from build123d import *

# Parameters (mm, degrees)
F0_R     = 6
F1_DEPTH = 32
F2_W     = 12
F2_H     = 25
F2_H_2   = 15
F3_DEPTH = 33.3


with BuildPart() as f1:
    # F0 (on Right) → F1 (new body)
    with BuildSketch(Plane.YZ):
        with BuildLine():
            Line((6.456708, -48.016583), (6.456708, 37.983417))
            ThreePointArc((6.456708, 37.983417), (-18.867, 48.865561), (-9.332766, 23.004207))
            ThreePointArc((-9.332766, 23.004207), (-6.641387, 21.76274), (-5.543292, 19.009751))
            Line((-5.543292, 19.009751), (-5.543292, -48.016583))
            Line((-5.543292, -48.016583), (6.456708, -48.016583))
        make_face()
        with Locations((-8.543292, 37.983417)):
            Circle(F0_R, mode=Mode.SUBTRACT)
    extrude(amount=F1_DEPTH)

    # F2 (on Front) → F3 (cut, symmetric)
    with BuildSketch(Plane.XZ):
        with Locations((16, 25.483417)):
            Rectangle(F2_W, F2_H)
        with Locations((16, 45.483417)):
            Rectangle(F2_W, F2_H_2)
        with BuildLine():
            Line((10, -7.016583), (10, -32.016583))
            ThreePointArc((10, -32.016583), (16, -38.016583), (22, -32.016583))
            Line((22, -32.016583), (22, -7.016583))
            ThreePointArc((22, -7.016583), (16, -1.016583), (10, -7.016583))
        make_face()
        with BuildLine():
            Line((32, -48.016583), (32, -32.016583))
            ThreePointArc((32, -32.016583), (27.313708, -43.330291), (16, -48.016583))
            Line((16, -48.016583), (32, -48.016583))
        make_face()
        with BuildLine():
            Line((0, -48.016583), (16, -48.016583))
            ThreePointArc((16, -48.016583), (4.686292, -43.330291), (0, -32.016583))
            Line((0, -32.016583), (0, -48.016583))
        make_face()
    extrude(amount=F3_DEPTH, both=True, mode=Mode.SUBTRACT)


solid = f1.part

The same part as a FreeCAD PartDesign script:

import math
import FreeCAD as App
import Part
import Sketcher

V = App.Vector

doc = App.newDocument("Part")
body = doc.addObject("PartDesign::Body", "Body")

sketch1 = doc.addObject("Sketcher::SketchObject", "Sketch")
body.addObject(sketch1)
sketch1.AttachmentSupport = (doc.YZ_Plane, [""])
sketch1.MapMode = "FlatFace"
sketch1.addGeometry(Part.LineSegment(V(6.5, -48, 0), V(6.5, 38, 0)), False)
sketch1.addGeometry(Part.ArcOfCircle(Part.Circle(V(-8.5, 38, 0), V(0, 0, 1), 15), math.radians(0), math.radians(267)), False)
sketch1.addGeometry(Part.ArcOfCircle(Part.Circle(V(-9.5, 19, 0), V(0, 0, 1), 4), math.radians(0), math.radians(87)), False)
sketch1.addGeometry(Part.LineSegment(V(-5.5, 19, 0), V(-5.5, -48, 0)), False)
sketch1.addGeometry(Part.LineSegment(V(-5.5, -48, 0), V(6.5, -48, 0)), False)
sketch1.addGeometry(Part.Circle(V(-8.5, 38, 0), V(0, 0, 1), 6), False)
sketch1.addConstraint(Sketcher.Constraint("Tangent", 0, 2, 1, 1))
sketch1.addConstraint(Sketcher.Constraint("Tangent", 1, 2, 2, 2))
sketch1.addConstraint(Sketcher.Constraint("Tangent", 2, 1, 3, 1))
sketch1.addConstraint(Sketcher.Constraint("Coincident", 3, 2, 4, 1))
sketch1.addConstraint(Sketcher.Constraint("Coincident", 4, 2, 0, 1))
sketch1.addConstraint(Sketcher.Constraint("Vertical", 0))
sketch1.addConstraint(Sketcher.Constraint("Vertical", 3))
sketch1.addConstraint(Sketcher.Constraint("Horizontal", 4))
sketch1.addConstraint(Sketcher.Constraint("Coincident", 5, 3, 1, 3))
sketch1.addConstraint(Sketcher.Constraint("Diameter", 5, 12.0))
sketch1.addConstraint(Sketcher.Constraint("Radius", 1, 15.0))
sketch1.addConstraint(Sketcher.Constraint("Radius", 2, 4.0))
sketch1.addConstraint(Sketcher.Constraint("DistanceX", 4, 1, 4, 2, 12.0))
sketch1.addConstraint(Sketcher.Constraint("DistanceY", 0, 1, 0, 2, 86.0))
sketch1.addConstraint(Sketcher.Constraint("DistanceX", 2, 3, -1, 1, 9.543292))
sketch1.addConstraint(Sketcher.Constraint("DistanceY", -1, 1, 2, 3, 19.009751))
pad1 = doc.addObject("PartDesign::Pad", "Pad")
body.addObject(pad1)
pad1.Profile = sketch1
pad1.Length = 32

sketch2 = doc.addObject("Sketcher::SketchObject", "Sketch001")
body.addObject(sketch2)
sketch2.AttachmentSupport = (doc.XZ_Plane, [""])
sketch2.MapMode = "FlatFace"
sketch2.addGeometry(Part.LineSegment(V(10, 13, 0), V(22, 13, 0)), False)
sketch2.addGeometry(Part.LineSegment(V(22, 13, 0), V(22, 53, 0)), False)
sketch2.addGeometry(Part.LineSegment(V(22, 53, 0), V(10, 53, 0)), False)
sketch2.addGeometry(Part.LineSegment(V(10, 53, 0), V(10, 13, 0)), False)
sketch2.addGeometry(Part.LineSegment(V(10, -7, 0), V(10, -32, 0)), False)
sketch2.addGeometry(Part.ArcOfCircle(Part.Circle(V(16, -32, 0), V(0, 0, 1), 6), math.radians(180), math.radians(360)), False)
sketch2.addGeometry(Part.LineSegment(V(22, -32, 0), V(22, -7, 0)), False)
sketch2.addGeometry(Part.ArcOfCircle(Part.Circle(V(16, -7, 0), V(0, 0, 1), 6), math.radians(0), math.radians(180)), False)
sketch2.addGeometry(Part.LineSegment(V(32, -48, 0), V(32, -32, 0)), False)
sketch2.addGeometry(Part.ArcOfCircle(Part.Circle(V(16, -32, 0), V(0, 0, 1), 16), math.radians(-90), math.radians(0)), False)
sketch2.addGeometry(Part.LineSegment(V(16, -48, 0), V(32, -48, 0)), False)
sketch2.addGeometry(Part.LineSegment(V(0, -48, 0), V(16, -48, 0)), False)
sketch2.addGeometry(Part.ArcOfCircle(Part.Circle(V(16, -32, 0), V(0, 0, 1), 16), math.radians(-180), math.radians(-90)), False)
sketch2.addGeometry(Part.LineSegment(V(0, -32, 0), V(0, -48, 0)), False)
sketch2.addConstraint(Sketcher.Constraint("Coincident", 0, 2, 1, 1))
sketch2.addConstraint(Sketcher.Constraint("Coincident", 1, 2, 2, 1))
sketch2.addConstraint(Sketcher.Constraint("Coincident", 2, 2, 3, 1))
sketch2.addConstraint(Sketcher.Constraint("Coincident", 3, 2, 0, 1))
sketch2.addConstraint(Sketcher.Constraint("Tangent", 4, 2, 5, 1))
sketch2.addConstraint(Sketcher.Constraint("Tangent", 5, 2, 6, 1))
sketch2.addConstraint(Sketcher.Constraint("Tangent", 6, 2, 7, 1))
sketch2.addConstraint(Sketcher.Constraint("Tangent", 7, 2, 4, 1))
sketch2.addConstraint(Sketcher.Constraint("Tangent", 8, 2, 9, 2))
sketch2.addConstraint(Sketcher.Constraint("Tangent", 9, 1, 10, 1))
sketch2.addConstraint(Sketcher.Constraint("Coincident", 10, 2, 8, 1))
sketch2.addConstraint(Sketcher.Constraint("Tangent", 11, 2, 12, 2))
sketch2.addConstraint(Sketcher.Constraint("Tangent", 12, 1, 13, 1))
sketch2.addConstraint(Sketcher.Constraint("Coincident", 13, 2, 11, 1))
sketch2.addConstraint(Sketcher.Constraint("Horizontal", 0))
sketch2.addConstraint(Sketcher.Constraint("Vertical", 1))
sketch2.addConstraint(Sketcher.Constraint("Horizontal", 2))
sketch2.addConstraint(Sketcher.Constraint("Vertical", 3))
sketch2.addConstraint(Sketcher.Constraint("Vertical", 4))
sketch2.addConstraint(Sketcher.Constraint("Vertical", 6))
sketch2.addConstraint(Sketcher.Constraint("Vertical", 8))
sketch2.addConstraint(Sketcher.Constraint("Horizontal", 10))
sketch2.addConstraint(Sketcher.Constraint("Horizontal", 11))
sketch2.addConstraint(Sketcher.Constraint("Vertical", 13))
sketch2.addConstraint(Sketcher.Constraint("Coincident", 9, 3, 5, 3))
sketch2.addConstraint(Sketcher.Constraint("Coincident", 12, 3, 5, 3))
sketch2.addConstraint(Sketcher.Constraint("Equal", 9, 12))
sketch2.addConstraint(Sketcher.Constraint("PointOnObject", 12, 1, -2))
sketch2.addConstraint(Sketcher.Constraint("Vertical", 3, 2, 4, 2))
sketch2.addConstraint(Sketcher.Constraint("Vertical", 1, 2, 5, 2))
sketch2.addConstraint(Sketcher.Constraint("Radius", 5, 6.0))
sketch2.addConstraint(Sketcher.Constraint("Radius", 9, 16.000002))
sketch2.addConstraint(Sketcher.Constraint("DistanceY", 1, 1, 1, 2, 40.0))
sketch2.addConstraint(Sketcher.Constraint("DistanceY", 4, 2, 4, 1, 25.0))
sketch2.addConstraint(Sketcher.Constraint("DistanceY", 7, 3, 0, 2, 20.0))
sketch2.addConstraint(Sketcher.Constraint("DistanceY", 9, 3, -1, 1, 32.016581))
pocket1 = doc.addObject("PartDesign::Pocket", "Pocket")
body.addObject(pocket1)
pocket1.Profile = sketch2
pocket1.Length = 66.6
pocket1.Midplane = True

doc.recompute()
